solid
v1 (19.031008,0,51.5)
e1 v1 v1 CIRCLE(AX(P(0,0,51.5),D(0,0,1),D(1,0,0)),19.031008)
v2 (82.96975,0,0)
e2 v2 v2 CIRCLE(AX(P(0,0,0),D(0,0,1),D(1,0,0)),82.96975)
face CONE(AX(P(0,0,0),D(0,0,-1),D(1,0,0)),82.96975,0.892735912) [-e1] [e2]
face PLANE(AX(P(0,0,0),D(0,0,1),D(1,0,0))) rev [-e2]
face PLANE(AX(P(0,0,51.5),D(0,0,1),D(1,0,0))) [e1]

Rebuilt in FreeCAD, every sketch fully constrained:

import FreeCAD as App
import Part
import Sketcher
Q = App.Units.Quantity

doc = App.newDocument("Part")
body = doc.addObject("PartDesign::Body", "Body")

sketch1 = body.newObject("Sketcher::SketchObject", "Sketch")
sketch1.AttachmentSupport = (doc.getObject("XY_Plane"), [""])
sketch1.MapMode = "FlatFace"
sketch1.addGeometry(Part.Circle(App.Vector(0, 0, 0), App.Vector(0, 0, 1), 82.96975), False)
sketch1.addConstraint([
    Sketcher.Constraint("Coincident", 0, 3, -1, 1),
    Sketcher.Constraint("Diameter", 0, Q("165.9395 mm")),
])
pad1 = body.newObject("PartDesign::Pad", "Pad")
pad1.Profile = sketch1
pad1.Length = 51.5
pad1.TaperAngle = -51.15

doc.recompute()
